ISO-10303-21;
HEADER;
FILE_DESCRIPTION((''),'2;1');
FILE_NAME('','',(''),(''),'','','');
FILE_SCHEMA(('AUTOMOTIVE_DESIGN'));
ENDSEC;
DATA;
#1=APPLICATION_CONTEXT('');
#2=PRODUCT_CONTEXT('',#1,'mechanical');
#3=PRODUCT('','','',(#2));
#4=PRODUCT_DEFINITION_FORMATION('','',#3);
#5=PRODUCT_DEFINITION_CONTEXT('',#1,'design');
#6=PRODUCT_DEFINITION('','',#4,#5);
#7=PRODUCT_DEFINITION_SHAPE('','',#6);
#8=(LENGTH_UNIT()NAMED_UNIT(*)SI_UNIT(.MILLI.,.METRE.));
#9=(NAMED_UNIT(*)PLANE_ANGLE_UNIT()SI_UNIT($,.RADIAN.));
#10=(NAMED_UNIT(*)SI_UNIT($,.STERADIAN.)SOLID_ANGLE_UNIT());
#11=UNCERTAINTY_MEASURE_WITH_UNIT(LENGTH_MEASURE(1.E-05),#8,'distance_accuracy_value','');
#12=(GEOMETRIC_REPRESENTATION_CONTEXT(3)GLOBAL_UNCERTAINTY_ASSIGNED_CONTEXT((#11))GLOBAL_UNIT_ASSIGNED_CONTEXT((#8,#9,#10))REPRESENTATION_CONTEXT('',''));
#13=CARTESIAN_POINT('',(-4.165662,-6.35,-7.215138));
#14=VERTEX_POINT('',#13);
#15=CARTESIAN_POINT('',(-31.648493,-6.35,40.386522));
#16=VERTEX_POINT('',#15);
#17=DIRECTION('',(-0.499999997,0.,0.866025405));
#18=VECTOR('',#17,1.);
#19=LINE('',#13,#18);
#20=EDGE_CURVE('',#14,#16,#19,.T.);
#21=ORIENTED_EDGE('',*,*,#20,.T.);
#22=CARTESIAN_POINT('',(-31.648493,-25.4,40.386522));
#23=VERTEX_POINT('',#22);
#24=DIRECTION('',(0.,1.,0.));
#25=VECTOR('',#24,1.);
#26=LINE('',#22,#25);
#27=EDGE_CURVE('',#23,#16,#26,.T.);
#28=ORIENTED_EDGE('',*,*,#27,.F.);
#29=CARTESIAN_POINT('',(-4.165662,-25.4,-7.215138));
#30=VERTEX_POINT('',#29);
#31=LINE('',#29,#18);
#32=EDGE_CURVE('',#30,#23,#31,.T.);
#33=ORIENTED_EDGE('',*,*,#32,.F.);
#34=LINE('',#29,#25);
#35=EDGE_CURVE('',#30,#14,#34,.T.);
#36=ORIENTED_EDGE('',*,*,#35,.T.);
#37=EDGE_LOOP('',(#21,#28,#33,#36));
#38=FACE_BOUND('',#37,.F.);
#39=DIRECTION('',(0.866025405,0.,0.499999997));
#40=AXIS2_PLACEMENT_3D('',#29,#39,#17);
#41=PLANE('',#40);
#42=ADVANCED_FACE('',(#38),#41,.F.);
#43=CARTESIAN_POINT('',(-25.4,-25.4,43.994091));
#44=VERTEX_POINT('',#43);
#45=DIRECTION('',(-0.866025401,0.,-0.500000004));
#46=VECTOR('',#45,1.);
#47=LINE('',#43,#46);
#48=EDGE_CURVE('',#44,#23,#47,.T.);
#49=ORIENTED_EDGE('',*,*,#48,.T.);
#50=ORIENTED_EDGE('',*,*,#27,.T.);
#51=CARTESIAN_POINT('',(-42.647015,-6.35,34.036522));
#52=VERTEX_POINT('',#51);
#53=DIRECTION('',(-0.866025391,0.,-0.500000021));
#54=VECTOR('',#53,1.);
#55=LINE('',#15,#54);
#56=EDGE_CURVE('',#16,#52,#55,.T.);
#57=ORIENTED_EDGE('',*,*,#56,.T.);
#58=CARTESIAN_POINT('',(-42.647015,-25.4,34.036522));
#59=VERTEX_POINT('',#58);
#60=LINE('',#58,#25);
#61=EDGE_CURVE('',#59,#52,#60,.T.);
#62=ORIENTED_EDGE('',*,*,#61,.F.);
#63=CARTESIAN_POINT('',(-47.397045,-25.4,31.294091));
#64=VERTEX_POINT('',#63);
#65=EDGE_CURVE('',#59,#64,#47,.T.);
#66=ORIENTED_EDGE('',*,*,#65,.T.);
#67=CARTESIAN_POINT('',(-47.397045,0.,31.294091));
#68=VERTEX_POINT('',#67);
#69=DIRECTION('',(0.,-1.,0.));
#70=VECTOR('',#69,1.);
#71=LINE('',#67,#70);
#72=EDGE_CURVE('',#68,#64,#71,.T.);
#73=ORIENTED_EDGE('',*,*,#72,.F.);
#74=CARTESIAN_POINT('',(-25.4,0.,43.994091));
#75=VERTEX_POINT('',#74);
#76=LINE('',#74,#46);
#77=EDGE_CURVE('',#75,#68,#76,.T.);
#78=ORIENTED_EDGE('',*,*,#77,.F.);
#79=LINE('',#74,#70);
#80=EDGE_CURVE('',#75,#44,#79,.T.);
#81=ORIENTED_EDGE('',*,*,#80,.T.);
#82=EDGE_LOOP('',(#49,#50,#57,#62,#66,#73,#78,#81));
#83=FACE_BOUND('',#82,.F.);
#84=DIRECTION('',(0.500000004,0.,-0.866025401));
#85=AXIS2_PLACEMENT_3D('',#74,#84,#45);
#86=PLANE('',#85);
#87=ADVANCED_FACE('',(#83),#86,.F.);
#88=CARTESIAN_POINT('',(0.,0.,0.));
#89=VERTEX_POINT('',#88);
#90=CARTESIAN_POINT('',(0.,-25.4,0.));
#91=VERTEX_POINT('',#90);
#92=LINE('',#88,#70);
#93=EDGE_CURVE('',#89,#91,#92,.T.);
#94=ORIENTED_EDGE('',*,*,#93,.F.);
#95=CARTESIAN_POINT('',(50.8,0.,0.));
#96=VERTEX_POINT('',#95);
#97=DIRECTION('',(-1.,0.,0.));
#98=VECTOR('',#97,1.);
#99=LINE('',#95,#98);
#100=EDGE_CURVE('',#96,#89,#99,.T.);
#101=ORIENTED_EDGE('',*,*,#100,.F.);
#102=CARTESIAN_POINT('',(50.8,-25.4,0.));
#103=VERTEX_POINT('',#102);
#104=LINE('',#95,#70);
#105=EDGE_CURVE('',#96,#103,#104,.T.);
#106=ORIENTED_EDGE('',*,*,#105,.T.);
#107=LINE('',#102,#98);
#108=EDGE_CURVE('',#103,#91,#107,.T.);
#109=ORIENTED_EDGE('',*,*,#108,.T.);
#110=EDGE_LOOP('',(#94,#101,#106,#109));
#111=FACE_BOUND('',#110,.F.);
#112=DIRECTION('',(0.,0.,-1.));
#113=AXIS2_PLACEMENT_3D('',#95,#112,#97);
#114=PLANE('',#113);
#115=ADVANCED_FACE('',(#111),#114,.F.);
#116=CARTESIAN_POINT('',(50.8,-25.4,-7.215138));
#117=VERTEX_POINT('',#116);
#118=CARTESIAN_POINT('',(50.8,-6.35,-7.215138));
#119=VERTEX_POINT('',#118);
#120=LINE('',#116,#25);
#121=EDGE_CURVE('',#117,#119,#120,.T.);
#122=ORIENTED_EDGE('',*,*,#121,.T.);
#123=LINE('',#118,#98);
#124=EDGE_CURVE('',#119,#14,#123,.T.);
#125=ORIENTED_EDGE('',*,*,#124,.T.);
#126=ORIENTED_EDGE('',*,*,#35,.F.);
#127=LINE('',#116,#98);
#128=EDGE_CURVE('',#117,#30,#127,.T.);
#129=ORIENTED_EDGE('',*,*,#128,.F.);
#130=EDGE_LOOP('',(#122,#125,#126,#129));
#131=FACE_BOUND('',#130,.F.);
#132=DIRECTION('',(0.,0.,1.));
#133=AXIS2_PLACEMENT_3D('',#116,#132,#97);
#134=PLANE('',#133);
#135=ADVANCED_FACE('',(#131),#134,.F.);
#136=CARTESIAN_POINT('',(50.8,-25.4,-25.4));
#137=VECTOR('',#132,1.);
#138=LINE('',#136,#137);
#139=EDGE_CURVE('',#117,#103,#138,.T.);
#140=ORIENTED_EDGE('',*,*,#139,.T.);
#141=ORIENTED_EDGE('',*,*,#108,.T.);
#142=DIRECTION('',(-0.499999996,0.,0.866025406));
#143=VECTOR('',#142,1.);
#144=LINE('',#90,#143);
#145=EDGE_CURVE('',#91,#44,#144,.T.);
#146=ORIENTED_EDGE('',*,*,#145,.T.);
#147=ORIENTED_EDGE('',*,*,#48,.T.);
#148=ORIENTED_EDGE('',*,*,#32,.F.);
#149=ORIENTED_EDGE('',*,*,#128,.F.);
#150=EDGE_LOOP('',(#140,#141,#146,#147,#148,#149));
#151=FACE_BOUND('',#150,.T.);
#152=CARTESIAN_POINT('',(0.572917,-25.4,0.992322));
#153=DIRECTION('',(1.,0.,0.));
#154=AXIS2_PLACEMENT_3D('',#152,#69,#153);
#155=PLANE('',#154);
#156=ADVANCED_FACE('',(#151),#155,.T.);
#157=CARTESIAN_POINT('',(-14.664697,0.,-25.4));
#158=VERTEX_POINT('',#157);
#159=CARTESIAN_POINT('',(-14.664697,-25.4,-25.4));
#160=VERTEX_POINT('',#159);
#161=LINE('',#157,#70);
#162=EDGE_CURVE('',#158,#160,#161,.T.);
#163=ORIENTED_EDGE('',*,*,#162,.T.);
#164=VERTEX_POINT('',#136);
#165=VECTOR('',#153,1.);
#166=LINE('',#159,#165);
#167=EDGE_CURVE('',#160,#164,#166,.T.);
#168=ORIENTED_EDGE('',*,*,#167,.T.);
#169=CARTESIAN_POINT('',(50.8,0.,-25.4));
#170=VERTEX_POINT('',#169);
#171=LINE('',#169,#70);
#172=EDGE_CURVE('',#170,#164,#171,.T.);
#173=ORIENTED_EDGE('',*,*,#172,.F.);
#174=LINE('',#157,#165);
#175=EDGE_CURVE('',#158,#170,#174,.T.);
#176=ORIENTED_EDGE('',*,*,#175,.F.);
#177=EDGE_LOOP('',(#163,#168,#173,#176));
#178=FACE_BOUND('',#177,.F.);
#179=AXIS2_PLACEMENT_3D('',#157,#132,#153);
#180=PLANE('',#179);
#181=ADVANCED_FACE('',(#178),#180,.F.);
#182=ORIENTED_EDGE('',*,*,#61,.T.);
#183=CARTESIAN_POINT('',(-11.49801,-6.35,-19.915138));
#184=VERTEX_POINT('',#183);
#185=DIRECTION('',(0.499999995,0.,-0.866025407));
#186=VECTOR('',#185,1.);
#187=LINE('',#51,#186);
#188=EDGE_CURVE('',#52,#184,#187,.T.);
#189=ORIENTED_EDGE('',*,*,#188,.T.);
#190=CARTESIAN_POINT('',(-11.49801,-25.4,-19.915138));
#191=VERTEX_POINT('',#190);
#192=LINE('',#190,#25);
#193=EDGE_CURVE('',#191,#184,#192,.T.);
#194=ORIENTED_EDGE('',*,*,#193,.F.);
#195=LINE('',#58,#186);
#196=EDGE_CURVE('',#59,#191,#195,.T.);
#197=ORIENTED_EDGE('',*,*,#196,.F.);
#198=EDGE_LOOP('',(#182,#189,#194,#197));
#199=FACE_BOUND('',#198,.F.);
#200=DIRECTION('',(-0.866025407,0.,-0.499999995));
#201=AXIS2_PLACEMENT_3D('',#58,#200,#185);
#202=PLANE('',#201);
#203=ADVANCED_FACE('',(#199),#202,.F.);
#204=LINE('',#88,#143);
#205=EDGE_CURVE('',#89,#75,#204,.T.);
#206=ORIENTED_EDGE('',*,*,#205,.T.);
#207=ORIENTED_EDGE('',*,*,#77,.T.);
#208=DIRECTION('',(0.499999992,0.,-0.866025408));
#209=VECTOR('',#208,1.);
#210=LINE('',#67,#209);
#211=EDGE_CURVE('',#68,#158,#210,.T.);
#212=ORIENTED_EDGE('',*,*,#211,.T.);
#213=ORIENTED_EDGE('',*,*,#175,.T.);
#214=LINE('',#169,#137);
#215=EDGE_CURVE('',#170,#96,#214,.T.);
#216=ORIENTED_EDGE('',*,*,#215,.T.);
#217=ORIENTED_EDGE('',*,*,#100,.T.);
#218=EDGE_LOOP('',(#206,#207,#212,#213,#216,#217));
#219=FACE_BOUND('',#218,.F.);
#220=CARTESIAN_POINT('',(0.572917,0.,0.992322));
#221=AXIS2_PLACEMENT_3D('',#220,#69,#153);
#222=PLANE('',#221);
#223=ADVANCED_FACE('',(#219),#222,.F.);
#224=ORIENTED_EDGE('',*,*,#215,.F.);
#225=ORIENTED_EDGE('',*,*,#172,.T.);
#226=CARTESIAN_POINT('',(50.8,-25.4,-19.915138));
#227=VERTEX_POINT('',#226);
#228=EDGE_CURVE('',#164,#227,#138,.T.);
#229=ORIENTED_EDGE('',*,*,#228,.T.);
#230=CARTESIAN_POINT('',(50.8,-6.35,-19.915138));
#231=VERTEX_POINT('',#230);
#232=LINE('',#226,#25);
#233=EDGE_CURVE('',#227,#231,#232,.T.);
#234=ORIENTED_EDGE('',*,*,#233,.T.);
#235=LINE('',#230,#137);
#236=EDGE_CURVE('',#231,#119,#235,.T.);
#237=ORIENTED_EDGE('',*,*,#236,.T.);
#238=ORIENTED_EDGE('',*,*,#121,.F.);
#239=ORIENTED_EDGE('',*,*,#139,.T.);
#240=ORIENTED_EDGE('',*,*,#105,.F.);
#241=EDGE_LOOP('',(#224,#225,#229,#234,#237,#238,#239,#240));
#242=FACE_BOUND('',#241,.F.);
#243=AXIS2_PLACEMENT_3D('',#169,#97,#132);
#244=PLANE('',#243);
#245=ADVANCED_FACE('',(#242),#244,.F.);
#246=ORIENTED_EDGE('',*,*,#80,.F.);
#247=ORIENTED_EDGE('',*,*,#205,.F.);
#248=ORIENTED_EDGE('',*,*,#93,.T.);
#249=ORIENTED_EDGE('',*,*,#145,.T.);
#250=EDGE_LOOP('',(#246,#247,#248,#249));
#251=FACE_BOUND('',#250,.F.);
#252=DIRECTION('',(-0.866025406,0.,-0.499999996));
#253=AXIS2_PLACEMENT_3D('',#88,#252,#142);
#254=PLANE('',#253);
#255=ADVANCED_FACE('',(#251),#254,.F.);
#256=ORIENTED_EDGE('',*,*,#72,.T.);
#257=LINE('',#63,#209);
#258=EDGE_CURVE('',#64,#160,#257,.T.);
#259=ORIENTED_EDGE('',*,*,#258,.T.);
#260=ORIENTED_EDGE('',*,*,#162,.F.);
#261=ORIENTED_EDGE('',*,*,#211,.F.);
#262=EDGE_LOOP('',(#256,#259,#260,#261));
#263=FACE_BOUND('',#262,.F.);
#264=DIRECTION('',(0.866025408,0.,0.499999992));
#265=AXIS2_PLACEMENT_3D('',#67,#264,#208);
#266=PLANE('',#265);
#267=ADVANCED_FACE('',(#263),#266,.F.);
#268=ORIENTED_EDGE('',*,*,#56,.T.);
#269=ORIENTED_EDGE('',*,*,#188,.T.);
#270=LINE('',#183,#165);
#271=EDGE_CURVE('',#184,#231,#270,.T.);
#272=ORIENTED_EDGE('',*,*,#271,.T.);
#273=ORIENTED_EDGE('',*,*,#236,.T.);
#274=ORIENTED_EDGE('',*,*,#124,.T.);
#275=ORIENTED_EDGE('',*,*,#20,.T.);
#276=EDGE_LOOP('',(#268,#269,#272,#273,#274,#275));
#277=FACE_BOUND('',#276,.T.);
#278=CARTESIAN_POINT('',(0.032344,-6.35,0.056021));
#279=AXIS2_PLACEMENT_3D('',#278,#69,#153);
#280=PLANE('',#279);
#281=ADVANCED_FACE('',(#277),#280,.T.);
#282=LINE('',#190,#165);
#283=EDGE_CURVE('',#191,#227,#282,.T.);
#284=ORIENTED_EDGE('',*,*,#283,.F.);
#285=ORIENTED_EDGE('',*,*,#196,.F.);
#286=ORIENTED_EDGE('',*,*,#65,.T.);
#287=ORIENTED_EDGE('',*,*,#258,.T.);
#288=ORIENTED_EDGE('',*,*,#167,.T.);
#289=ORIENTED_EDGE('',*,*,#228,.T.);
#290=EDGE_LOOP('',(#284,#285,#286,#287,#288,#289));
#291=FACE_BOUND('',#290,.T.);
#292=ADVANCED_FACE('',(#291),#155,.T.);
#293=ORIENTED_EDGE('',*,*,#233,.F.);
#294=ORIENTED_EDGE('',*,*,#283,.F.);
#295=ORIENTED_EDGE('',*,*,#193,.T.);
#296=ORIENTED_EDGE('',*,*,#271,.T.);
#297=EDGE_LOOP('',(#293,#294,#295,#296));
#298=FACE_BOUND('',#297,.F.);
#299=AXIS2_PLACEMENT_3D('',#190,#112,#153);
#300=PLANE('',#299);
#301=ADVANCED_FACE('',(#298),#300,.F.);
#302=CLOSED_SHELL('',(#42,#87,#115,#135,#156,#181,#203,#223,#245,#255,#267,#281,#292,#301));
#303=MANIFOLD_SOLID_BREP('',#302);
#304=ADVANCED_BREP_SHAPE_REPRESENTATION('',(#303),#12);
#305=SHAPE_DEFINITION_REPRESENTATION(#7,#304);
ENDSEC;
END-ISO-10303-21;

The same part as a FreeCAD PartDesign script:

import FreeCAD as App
import Part
import Sketcher
from FreeCAD import Vector
Q = App.Units.Quantity

doc = App.newDocument("Part")
body = doc.addObject("PartDesign::Body", "Body")

sketch1 = doc.addObject("Sketcher::SketchObject", "Sketch")
body.addObject(sketch1)
sketch1.AttachmentSupport = (doc.XZ_Plane, [""])
sketch1.MapMode = "FlatFace"
sketch1.addGeometry(Part.LineSegment(Vector(-25, 44, 0), Vector(-47, 31, 0)), False)
sketch1.addGeometry(Part.LineSegment(Vector(-47, 31, 0), Vector(-15, -25, 0)), False)
sketch1.addGeometry(Part.LineSegment(Vector(-15, -25, 0), Vector(51, -25, 0)), False)
sketch1.addGeometry(Part.LineSegment(Vector(51, -25, 0), Vector(51, 0, 0)), False)
sketch1.addGeometry(Part.LineSegment(Vector(51, 0, 0), Vector(0, 0, 0)), False)
sketch1.addGeometry(Part.LineSegment(Vector(0, 0, 0), Vector(-25, 44, 0)), False)
sketch1.addConstraint(Sketcher.Constraint("Coincident", 0, 2, 1, 1))
sketch1.addConstraint(Sketcher.Constraint("Coincident", 1, 2, 2, 1))
sketch1.addConstraint(Sketcher.Constraint("Coincident", 2, 2, 3, 1))
sketch1.addConstraint(Sketcher.Constraint("Coincident", 3, 2, 4, 1))
sketch1.addConstraint(Sketcher.Constraint("Coincident", 4, 2, 5, 1))
sketch1.addConstraint(Sketcher.Constraint("Coincident", 5, 2, 0, 1))
sketch1.addConstraint(Sketcher.Constraint("Horizontal", 2))
sketch1.addConstraint(Sketcher.Constraint("Vertical", 3))
sketch1.addConstraint(Sketcher.Constraint("Horizontal", 4))
sketch1.addConstraint(Sketcher.Constraint("Coincident", 4, 2, -1, 1))
sketch1.addConstraint(Sketcher.Constraint("Perpendicular", 0, 1))
sketch1.addConstraint(Sketcher.Constraint("Parallel", 1, 5))
sketch1.addConstraint(Sketcher.Constraint("DistanceX", 4, 2, 4, 1, Q("2 in")))
sketch1.addConstraint(Sketcher.Constraint("DistanceY", 3, 1, 3, 2, Q("1 in")))
sketch1.addConstraint(Sketcher.Constraint("Distance", 0, Q("1 in")))
sketch1.addConstraint(Sketcher.Constraint("Distance", 5, Q("2 in")))
sketch1.addConstraint(Sketcher.Constraint("DistanceX", 5, 2, -1, 1, Q("1 in")))
pad1 = doc.addObject("PartDesign::Pad", "Pad")
body.addObject(pad1)
pad1.Profile = sketch1
pad1.Length = Q("1 in")

sketch2 = doc.addObject("Sketcher::SketchObject", "Sketch001")
body.addObject(sketch2)
sketch2.AttachmentSupport = (doc.XZ_Plane, [""])
sketch2.MapMode = "FlatFace"
sketch2.AttachmentOffset = App.Placement(Vector(0, 0, 1 * 25.4), App.Rotation())
sketch2.addGeometry(Part.LineSegment(Vector(-32, 40, 0), Vector(-43, 34, 0)), False)
sketch2.addGeometry(Part.LineSegment(Vector(-43, 34, 0), Vector(-11, -20, 0)), False)
sketch2.addGeometry(Part.LineSegment(Vector(-11, -20, 0), Vector(51, -20, 0)), False)
sketch2.addGeometry(Part.LineSegment(Vector(51, -20, 0), Vector(51, -7, 0)), False)
sketch2.addGeometry(Part.LineSegment(Vector(51, -7, 0), Vector(-4, -7, 0)), False)
sketch2.addGeometry(Part.LineSegment(Vector(-4, -7, 0), Vector(-32, 40, 0)), False)
sketch2.addConstraint(Sketcher.Constraint("Coincident", 0, 2, 1, 1))
sketch2.addConstraint(Sketcher.Constraint("Coincident", 1, 2, 2, 1))
sketch2.addConstraint(Sketcher.Constraint("Coincident", 2, 2, 3, 1))
sketch2.addConstraint(Sketcher.Constraint("Coincident", 3, 2, 4, 1))
sketch2.addConstraint(Sketcher.Constraint("Coincident", 4, 2, 5, 1))
sketch2.addConstraint(Sketcher.Constraint("Coincident", 5, 2, 0, 1))
sketch2.addConstraint(Sketcher.Constraint("Horizontal", 2))
sketch2.addConstraint(Sketcher.Constraint("Vertical", 3))
sketch2.addConstraint(Sketcher.Constraint("Horizontal", 4))
sketch2.addConstraint(Sketcher.Constraint("Perpendicular", 0, 1))
sketch2.addConstraint(Sketcher.Constraint("Parallel", 1, 5))
sketch2.addConstraint(Sketcher.Constraint("DistanceY", 3, 1, 3, 2, Q("0.5 in")))
sketch2.addConstraint(Sketcher.Constraint("DistanceX", -1, 1, 2, 2, Q("2 in")))
sketch2.addConstraint(Sketcher.Constraint("Angle", 0, Q("-149.999999 deg")))
sketch2.addConstraint(Sketcher.Constraint("Distance", 0, Q("0.5 in")))
sketch2.addConstraint(Sketcher.Constraint("DistanceX", 2, 1, 2, 2, 62.29801))
sketch2.addConstraint(Sketcher.Constraint("Distance", 1, 62.298011))
sketch2.addConstraint(Sketcher.Constraint("DistanceY", -1, 1, 0, 2, 34.036522))
pocket1 = doc.addObject("PartDesign::Pocket", "Pocket")
body.addObject(pocket1)
pocket1.Profile = sketch2
pocket1.Length = Q("0.75 in")

doc.recompute()
